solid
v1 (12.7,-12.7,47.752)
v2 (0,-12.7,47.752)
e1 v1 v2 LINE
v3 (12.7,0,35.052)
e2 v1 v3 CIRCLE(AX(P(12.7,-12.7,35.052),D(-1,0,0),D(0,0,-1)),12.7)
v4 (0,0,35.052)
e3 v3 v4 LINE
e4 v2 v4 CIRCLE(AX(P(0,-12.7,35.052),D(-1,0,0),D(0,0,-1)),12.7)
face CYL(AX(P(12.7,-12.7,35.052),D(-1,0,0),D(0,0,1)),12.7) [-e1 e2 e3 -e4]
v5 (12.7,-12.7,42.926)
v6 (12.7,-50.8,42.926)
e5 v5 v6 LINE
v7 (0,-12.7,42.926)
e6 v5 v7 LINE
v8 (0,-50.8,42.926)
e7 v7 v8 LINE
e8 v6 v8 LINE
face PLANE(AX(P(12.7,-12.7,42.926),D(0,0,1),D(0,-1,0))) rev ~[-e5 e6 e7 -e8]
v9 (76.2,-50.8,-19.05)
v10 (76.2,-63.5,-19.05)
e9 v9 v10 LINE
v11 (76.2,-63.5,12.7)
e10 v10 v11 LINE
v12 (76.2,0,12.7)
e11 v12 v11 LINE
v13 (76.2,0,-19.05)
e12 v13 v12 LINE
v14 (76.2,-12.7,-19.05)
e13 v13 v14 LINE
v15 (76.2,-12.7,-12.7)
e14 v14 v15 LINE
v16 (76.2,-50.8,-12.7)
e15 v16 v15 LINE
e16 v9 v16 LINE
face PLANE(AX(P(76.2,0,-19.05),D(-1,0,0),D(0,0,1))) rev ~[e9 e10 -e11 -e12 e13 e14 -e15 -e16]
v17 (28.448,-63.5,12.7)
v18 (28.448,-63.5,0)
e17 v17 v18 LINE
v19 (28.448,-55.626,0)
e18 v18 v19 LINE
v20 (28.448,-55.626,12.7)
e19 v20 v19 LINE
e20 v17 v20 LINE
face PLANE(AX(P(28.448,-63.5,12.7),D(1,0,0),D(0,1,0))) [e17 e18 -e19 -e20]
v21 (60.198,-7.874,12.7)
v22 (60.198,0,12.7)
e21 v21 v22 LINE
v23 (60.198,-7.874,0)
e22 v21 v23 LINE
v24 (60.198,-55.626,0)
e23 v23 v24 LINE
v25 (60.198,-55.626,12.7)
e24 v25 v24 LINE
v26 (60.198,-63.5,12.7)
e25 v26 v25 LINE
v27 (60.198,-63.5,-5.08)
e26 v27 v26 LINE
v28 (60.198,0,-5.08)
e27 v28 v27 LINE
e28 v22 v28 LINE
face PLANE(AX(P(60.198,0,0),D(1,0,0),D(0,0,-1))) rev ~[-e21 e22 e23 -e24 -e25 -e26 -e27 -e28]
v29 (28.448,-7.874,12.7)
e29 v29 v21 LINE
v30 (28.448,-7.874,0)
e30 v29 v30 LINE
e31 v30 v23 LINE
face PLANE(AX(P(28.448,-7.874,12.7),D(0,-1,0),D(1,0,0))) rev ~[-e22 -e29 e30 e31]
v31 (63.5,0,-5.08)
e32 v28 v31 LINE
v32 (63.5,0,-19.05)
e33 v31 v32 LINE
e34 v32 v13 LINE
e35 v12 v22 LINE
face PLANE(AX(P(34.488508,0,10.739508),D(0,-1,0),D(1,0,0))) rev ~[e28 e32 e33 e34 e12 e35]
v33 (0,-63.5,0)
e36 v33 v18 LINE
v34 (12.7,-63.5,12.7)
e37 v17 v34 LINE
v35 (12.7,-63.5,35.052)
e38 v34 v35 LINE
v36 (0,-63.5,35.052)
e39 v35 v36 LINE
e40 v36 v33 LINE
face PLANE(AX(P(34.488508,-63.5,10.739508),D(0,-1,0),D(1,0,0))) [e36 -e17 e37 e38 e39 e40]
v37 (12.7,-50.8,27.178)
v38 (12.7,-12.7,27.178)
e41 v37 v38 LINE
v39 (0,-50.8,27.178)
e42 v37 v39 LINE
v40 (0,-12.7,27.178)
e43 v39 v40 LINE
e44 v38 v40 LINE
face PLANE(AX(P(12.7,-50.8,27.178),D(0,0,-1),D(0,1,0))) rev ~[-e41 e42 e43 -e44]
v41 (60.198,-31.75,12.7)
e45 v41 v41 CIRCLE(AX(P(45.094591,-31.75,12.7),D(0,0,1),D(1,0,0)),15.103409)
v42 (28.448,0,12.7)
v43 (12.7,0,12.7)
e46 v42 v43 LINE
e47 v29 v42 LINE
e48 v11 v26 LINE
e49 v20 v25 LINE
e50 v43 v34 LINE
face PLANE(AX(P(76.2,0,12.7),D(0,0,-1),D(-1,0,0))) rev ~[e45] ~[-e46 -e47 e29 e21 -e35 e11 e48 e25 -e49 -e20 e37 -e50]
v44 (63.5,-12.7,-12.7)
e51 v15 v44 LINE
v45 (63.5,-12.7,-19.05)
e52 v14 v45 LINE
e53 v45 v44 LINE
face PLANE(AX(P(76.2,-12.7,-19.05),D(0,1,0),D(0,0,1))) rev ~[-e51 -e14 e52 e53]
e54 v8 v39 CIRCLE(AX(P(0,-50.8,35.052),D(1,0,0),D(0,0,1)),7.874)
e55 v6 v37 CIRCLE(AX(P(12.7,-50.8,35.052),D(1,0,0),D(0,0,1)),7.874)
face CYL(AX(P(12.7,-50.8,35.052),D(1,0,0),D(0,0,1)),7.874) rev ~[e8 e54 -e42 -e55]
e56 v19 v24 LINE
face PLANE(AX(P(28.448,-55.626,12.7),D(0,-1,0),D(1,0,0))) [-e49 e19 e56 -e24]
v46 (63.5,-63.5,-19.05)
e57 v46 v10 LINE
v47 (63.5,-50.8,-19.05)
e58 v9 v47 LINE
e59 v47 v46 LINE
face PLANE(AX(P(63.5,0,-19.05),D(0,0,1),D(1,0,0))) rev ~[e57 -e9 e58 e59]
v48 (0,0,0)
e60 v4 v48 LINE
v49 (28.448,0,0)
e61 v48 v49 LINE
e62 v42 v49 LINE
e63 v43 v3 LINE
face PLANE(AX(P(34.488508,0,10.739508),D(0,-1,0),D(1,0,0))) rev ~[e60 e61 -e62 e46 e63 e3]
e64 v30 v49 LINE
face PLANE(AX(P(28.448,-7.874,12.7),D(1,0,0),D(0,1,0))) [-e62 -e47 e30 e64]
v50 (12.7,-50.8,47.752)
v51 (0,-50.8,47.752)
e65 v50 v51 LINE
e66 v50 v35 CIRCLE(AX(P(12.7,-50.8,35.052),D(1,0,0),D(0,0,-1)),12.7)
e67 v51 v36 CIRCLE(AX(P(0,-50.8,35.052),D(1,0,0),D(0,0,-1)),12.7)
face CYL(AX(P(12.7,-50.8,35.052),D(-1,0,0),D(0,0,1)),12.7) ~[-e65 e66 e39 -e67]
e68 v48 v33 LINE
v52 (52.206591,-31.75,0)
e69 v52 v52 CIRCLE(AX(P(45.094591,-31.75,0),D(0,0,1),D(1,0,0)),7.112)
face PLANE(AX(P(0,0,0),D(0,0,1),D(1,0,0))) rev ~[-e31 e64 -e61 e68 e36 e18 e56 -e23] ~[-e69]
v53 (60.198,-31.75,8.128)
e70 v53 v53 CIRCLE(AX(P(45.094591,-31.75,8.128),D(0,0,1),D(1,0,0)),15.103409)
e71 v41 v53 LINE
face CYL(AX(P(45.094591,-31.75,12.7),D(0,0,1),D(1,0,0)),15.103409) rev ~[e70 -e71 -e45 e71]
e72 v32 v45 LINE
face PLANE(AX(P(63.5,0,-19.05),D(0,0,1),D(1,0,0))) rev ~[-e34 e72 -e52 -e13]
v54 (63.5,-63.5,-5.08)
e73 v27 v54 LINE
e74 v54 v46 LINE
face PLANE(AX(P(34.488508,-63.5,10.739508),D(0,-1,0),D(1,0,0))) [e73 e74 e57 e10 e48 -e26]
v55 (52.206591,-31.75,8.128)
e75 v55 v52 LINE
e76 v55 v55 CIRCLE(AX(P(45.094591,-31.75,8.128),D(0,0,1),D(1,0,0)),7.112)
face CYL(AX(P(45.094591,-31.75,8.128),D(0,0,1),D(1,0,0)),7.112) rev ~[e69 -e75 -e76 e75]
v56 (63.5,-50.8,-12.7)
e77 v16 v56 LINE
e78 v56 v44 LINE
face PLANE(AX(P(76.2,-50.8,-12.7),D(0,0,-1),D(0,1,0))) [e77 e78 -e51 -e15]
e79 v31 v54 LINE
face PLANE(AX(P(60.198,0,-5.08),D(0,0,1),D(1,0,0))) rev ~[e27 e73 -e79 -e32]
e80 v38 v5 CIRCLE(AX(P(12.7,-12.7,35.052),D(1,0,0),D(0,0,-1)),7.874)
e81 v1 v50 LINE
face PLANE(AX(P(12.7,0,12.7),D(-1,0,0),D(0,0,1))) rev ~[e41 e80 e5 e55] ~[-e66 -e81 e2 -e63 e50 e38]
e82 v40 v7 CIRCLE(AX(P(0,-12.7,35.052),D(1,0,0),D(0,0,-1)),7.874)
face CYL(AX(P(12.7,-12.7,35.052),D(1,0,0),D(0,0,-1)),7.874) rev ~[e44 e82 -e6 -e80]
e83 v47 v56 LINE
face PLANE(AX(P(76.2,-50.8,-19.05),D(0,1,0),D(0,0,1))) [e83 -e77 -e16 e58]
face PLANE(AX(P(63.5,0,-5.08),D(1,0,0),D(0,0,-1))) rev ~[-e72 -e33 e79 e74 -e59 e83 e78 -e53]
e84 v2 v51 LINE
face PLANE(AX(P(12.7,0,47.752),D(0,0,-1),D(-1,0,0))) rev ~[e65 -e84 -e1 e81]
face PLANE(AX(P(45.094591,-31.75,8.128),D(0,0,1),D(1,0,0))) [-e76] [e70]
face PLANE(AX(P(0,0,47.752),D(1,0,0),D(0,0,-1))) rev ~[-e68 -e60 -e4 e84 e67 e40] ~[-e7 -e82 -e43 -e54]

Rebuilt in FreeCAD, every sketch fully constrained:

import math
import FreeCAD as App
import Part
import Sketcher

V = App.Vector
Q = App.Units.Quantity


def edges_at(feature, points):
    """Names of the edges that pass closest to the given points."""
    edges = feature.Shape.Edges
    near = lambda p: min(range(len(edges)), key=lambda i: edges[i].distToShape(Part.Vertex(*p))[0])
    return sorted({f"Edge{near(p) + 1}" for p in points})


def add_polygon(sketch, points):
    """Adds a closed chain of lines whose ends are joined by coincident constraints."""
    first, n = sketch.GeometryCount, len(points)
    for a, b in zip(points, points[1:] + points[:1]):
        sketch.addGeometry(Part.LineSegment(App.Vector(*a, 0), App.Vector(*b, 0)), False)
    for i in range(n):
        sketch.addConstraint(Sketcher.Constraint("Coincident", first + i, 2, first + (i + 1) % n, 1))

doc = App.newDocument("Part")
body = doc.addObject("PartDesign::Body", "Body")

# Sketch on XZ plane
sketch1 = body.newObject("Sketcher::SketchObject", "Sketch")
sketch1.AttachmentSupport = (doc.getObject("XZ_Plane"), [""])
sketch1.MapMode = "FlatFace"
add_polygon(sketch1, [(0, 47.752), (0, 0), (60.198, 0), (60.198, -5.08), (63.5, -5.08), (63.5, -19.05), (76.2, -19.05), (76.2, 12.7), (12.7, 12.7), (12.7, 47.752)])  # lines 0-9
sketch1.addConstraint(Sketcher.Constraint("Vertical", 0))
sketch1.addConstraint(Sketcher.Constraint("Horizontal", 1))
sketch1.addConstraint(Sketcher.Constraint("Vertical", 2))
sketch1.addConstraint(Sketcher.Constraint("Horizontal", 3))
sketch1.addConstraint(Sketcher.Constraint("Vertical", 4))
sketch1.addConstraint(Sketcher.Constraint("Horizontal", 5))
sketch1.addConstraint(Sketcher.Constraint("Vertical", 6))
sketch1.addConstraint(Sketcher.Constraint("Horizontal", 7))
sketch1.addConstraint(Sketcher.Constraint("Vertical", 8))
sketch1.addConstraint(Sketcher.Constraint("Horizontal", 9))
sketch1.addConstraint(Sketcher.Constraint("Coincident", 0, 2, -1, 1))
sketch1.addConstraint(Sketcher.Constraint("Equal", 5, 9))
sketch1.addConstraint(Sketcher.Constraint("DistanceX", 5, 1, 5, 2, Q("0.5 in")))
sketch1.addConstraint(Sketcher.Constraint("DistanceX", 7, 2, 7, 1, Q("2.5 in")))
sketch1.addConstraint(Sketcher.Constraint("DistanceY", 2, 2, 2, 1, Q("0.2 in")))
sketch1.addConstraint(Sketcher.Constraint("DistanceX", 1, 1, 1, 2, Q("2.37 in")))
sketch1.addConstraint(Sketcher.Constraint("DistanceY", 0, 2, 0, 1, Q("1.88 in")))
sketch1.addConstraint(Sketcher.Constraint("DistanceY", 4, 2, 4, 1, Q("0.55 in")))
sketch1.addConstraint(Sketcher.Constraint("DistanceY", 6, 1, 6, 2, Q("1.25 in")))
pad1 = body.newObject("PartDesign::Pad", "Pad")
pad1.Profile = sketch1
pad1.Length = Q("2.5 in")
doc.recompute()

fillet = body.newObject("PartDesign::Fillet", "Fillet")
fillet.Base = (pad1, edges_at(pad1, [(6.35, -63.5, 47.752), (6.35, 0, 47.752)]))
fillet.Radius = Q("0.5 in")

# Sketch on YZ plane
sketch2 = body.newObject("Sketcher::SketchObject", "Sketch001")
sketch2.AttachmentSupport = (doc.getObject("YZ_Plane"), [""])
sketch2.MapMode = "FlatFace"
sketch2.AttachmentOffset = App.Placement(V(0, 0, 3 * 25.4), App.Rotation())
add_polygon(sketch2, [(-50.8, -12.7), (-50.8, -19.05), (-12.7, -19.05), (-12.7, -12.7)])  # lines 0-3
sketch2.addConstraint(Sketcher.Constraint("Vertical", 0))
sketch2.addConstraint(Sketcher.Constraint("Horizontal", 1))
sketch2.addConstraint(Sketcher.Constraint("Vertical", 2))
sketch2.addConstraint(Sketcher.Constraint("Horizontal", 3))
sketch2.addConstraint(Sketcher.Constraint("DistanceX", 1, 1, 1, 2, Q("1.5 in")))
sketch2.addConstraint(Sketcher.Constraint("DistanceX", 0, 2, -1, 1, Q("2 in")))
sketch2.addConstraint(Sketcher.Constraint("DistanceY", 0, 2, 0, 1, Q("0.25 in")))
sketch2.addConstraint(Sketcher.Constraint("DistanceY", 2, 2, -1, 1, Q("0.5 in")))
pocket1 = body.newObject("PartDesign::Pocket", "Pocket")
pocket1.Profile = sketch2
pocket1.Length = Q("1 in")

# Sketch on XY plane
sketch3 = body.newObject("Sketcher::SketchObject", "Sketch002")
sketch3.AttachmentSupport = (doc.getObject("XY_Plane"), [""])
sketch3.MapMode = "FlatFace"
sketch3.AttachmentOffset = App.Placement(V(0, 0, 0.5 * 25.4), App.Rotation())
add_polygon(sketch3, [(28.448, -55.626), (28.448, -63.5), (60.198, -63.5), (60.198, -55.626)])  # lines 0-3
add_polygon(sketch3, [(28.448, 0), (28.448, -7.874), (60.198, -7.874), (60.198, 0)])  # lines 4-7
sketch3.addConstraint(Sketcher.Constraint("Vertical", 0))
sketch3.addConstraint(Sketcher.Constraint("Horizontal", 1))
sketch3.addConstraint(Sketcher.Constraint("Vertical", 2))
sketch3.addConstraint(Sketcher.Constraint("Horizontal", 3))
sketch3.addConstraint(Sketcher.Constraint("Vertical", 4))
sketch3.addConstraint(Sketcher.Constraint("Horizontal", 5))
sketch3.addConstraint(Sketcher.Constraint("Vertical", 6))
sketch3.addConstraint(Sketcher.Constraint("Horizontal", 7))
sketch3.addConstraint(Sketcher.Constraint("PointOnObject", 6, 2, -1))
sketch3.addConstraint(Sketcher.Constraint("Vertical", 3, 2, 4, 2))
sketch3.addConstraint(Sketcher.Constraint("Vertical", 2, 2, 5, 2))
sketch3.addConstraint(Sketcher.Constraint("Equal", 2, 4))
sketch3.addConstraint(Sketcher.Constraint("DistanceX", 1, 1, 1, 2, Q("1.25 in")))
sketch3.addConstraint(Sketcher.Constraint("DistanceY", 0, 2, 0, 1, Q("0.31 in")))
sketch3.addConstraint(Sketcher.Constraint("DistanceY", 0, 2, -1, 1, Q("2.5 in")))
sketch3.addConstraint(Sketcher.Constraint("DistanceX", -1, 1, 0, 2, Q("1.12 in")))
pocket2 = body.newObject("PartDesign::Pocket", "Pocket001")
pocket2.Profile = sketch3
pocket2.Length = Q("1 in")

# Sketch on XY plane
sketch4 = body.newObject("Sketcher::SketchObject", "Sketch003")
sketch4.AttachmentSupport = (doc.getObject("XY_Plane"), [""])
sketch4.MapMode = "FlatFace"
sketch4.AttachmentOffset = App.Placement(V(0, 0, 0.5 * 25.4), App.Rotation())
sketch4.addGeometry(Part.Circle(V(45.094591, -31.75, 0), V(0, 0, 1), 15.103409), False)
sketch4.addConstraint(Sketcher.Constraint("DistanceY", 0, 3, -1, 1, Q("1.25 in")))
sketch4.addConstraint(Sketcher.Constraint("Diameter", 0, Q("30.206818 mm")))
sketch4.addConstraint(Sketcher.Constraint("DistanceX", -1, 1, 0, 3, Q("45.094591 mm")))
pocket3 = body.newObject("PartDesign::Pocket", "Pocket002")
pocket3.Profile = sketch4
pocket3.Length = Q("0.18 in")

# Sketch on XY plane
sketch5 = body.newObject("Sketcher::SketchObject", "Sketch004")
sketch5.AttachmentSupport = (doc.getObject("XY_Plane"), [""])
sketch5.MapMode = "FlatFace"
sketch5.AttachmentOffset = App.Placement(V(0, 0, 0.32 * 25.4), App.Rotation())
sketch5.addGeometry(Part.Circle(V(45.094591, -31.75, 0), V(0, 0, 1), 7.112), False)
sketch5.addConstraint(Sketcher.Constraint("Diameter", 0, Q("0.56 in")))
sketch5.addConstraint(Sketcher.Constraint("DistanceY", 0, 3, -1, 1, Q("1.25 in")))
sketch5.addConstraint(Sketcher.Constraint("DistanceX", -1, 1, 0, 3, Q("45.094591 mm")))
pocket4 = body.newObject("PartDesign::Pocket", "Pocket003")
pocket4.Profile = sketch5
pocket4.Type = "ThroughAll"

# Sketch on YZ plane
sketch6 = body.newObject("Sketcher::SketchObject", "Sketch005")
sketch6.AttachmentSupport = (doc.getObject("YZ_Plane"), [""])
sketch6.MapMode = "FlatFace"
sketch6.AttachmentOffset = App.Placement(V(0, 0, 0.5 * 25.4), App.Rotation())
sketch6.addGeometry(Part.LineSegment(V(-12.7, 42.926, 0), V(-50.8, 42.926, 0)), False)
sketch6.addGeometry(Part.ArcOfCircle(Part.Circle(V(-50.8, 35.052, 0), V(0, 0, 1), 7.874), math.radians(90), math.radians(270)), False)
sketch6.addGeometry(Part.LineSegment(V(-50.8, 27.178, 0), V(-12.7, 27.178, 0)), False)
sketch6.addGeometry(Part.ArcOfCircle(Part.Circle(V(-12.7, 35.052, 0), V(0, 0, 1), 7.874), math.radians(-90), math.radians(90)), False)
sketch6.addConstraint(Sketcher.Constraint("Tangent", 0, 2, 1, 1))
sketch6.addConstraint(Sketcher.Constraint("Tangent", 1, 2, 2, 1))
sketch6.addConstraint(Sketcher.Constraint("Tangent", 2, 2, 3, 1))
sketch6.addConstraint(Sketcher.Constraint("Tangent", 3, 2, 0, 1))
sketch6.addConstraint(Sketcher.Constraint("Horizontal", 0))
sketch6.addConstraint(Sketcher.Constraint("Horizontal", 2))
sketch6.addConstraint(Sketcher.Constraint("Radius", 1, Q("0.31 in")))
sketch6.addConstraint(Sketcher.Constraint("DistanceX", 0, 2, 0, 1, Q("1.5 in")))
sketch6.addConstraint(Sketcher.Constraint("DistanceX", 1, 3, -1, 1, Q("2 in")))
sketch6.addConstraint(Sketcher.Constraint("DistanceY", -1, 1, 1, 3, Q("1.38 in")))
pocket5 = body.newObject("PartDesign::Pocket", "Pocket004")
pocket5.Profile = sketch6
pocket5.Length = Q("1 in")

# Sketch on YZ plane
sketch7 = body.newObject("Sketcher::SketchObject", "Sketch006")
sketch7.AttachmentSupport = (doc.getObject("YZ_Plane"), [""])
sketch7.MapMode = "FlatFace"
sketch7.AttachmentOffset = App.Placement(V(0, 0, 0.5 * 25.4), App.Rotation())
sketch7.addGeometry(Part.LineSegment(V(-12.7, 42.926, 0), V(-50.8, 42.926, 0)), False)
sketch7.addGeometry(Part.ArcOfCircle(Part.Circle(V(-50.8, 35.052, 0), V(0, 0, 1), 7.874), math.radians(90), math.radians(270)), False)
sketch7.addGeometry(Part.LineSegment(V(-50.8, 27.178, 0), V(-12.7, 27.178, 0)), False)
sketch7.addGeometry(Part.ArcOfCircle(Part.Circle(V(-12.7, 35.052, 0), V(0, 0, 1), 7.874), math.radians(-90), math.radians(90)), False)
sketch7.addConstraint(Sketcher.Constraint("Tangent", 0, 2, 1, 1))
sketch7.addConstraint(Sketcher.Constraint("Tangent", 1, 2, 2, 1))
sketch7.addConstraint(Sketcher.Constraint("Tangent", 2, 2, 3, 1))
sketch7.addConstraint(Sketcher.Constraint("Tangent", 3, 2, 0, 1))
sketch7.addConstraint(Sketcher.Constraint("Horizontal", 0))
sketch7.addConstraint(Sketcher.Constraint("Horizontal", 2))
sketch7.addConstraint(Sketcher.Constraint("Radius", 1, Q("0.31 in")))
sketch7.addConstraint(Sketcher.Constraint("DistanceX", 0, 2, 0, 1, Q("1.5 in")))
sketch7.addConstraint(Sketcher.Constraint("DistanceX", 1, 3, -1, 1, Q("2 in")))
sketch7.addConstraint(Sketcher.Constraint("DistanceY", -1, 1, 1, 3, Q("1.38 in")))
pocket6 = body.newObject("PartDesign::Pocket", "Pocket005")
pocket6.Profile = sketch7
pocket6.Type = "ThroughAll"

doc.recompute()
